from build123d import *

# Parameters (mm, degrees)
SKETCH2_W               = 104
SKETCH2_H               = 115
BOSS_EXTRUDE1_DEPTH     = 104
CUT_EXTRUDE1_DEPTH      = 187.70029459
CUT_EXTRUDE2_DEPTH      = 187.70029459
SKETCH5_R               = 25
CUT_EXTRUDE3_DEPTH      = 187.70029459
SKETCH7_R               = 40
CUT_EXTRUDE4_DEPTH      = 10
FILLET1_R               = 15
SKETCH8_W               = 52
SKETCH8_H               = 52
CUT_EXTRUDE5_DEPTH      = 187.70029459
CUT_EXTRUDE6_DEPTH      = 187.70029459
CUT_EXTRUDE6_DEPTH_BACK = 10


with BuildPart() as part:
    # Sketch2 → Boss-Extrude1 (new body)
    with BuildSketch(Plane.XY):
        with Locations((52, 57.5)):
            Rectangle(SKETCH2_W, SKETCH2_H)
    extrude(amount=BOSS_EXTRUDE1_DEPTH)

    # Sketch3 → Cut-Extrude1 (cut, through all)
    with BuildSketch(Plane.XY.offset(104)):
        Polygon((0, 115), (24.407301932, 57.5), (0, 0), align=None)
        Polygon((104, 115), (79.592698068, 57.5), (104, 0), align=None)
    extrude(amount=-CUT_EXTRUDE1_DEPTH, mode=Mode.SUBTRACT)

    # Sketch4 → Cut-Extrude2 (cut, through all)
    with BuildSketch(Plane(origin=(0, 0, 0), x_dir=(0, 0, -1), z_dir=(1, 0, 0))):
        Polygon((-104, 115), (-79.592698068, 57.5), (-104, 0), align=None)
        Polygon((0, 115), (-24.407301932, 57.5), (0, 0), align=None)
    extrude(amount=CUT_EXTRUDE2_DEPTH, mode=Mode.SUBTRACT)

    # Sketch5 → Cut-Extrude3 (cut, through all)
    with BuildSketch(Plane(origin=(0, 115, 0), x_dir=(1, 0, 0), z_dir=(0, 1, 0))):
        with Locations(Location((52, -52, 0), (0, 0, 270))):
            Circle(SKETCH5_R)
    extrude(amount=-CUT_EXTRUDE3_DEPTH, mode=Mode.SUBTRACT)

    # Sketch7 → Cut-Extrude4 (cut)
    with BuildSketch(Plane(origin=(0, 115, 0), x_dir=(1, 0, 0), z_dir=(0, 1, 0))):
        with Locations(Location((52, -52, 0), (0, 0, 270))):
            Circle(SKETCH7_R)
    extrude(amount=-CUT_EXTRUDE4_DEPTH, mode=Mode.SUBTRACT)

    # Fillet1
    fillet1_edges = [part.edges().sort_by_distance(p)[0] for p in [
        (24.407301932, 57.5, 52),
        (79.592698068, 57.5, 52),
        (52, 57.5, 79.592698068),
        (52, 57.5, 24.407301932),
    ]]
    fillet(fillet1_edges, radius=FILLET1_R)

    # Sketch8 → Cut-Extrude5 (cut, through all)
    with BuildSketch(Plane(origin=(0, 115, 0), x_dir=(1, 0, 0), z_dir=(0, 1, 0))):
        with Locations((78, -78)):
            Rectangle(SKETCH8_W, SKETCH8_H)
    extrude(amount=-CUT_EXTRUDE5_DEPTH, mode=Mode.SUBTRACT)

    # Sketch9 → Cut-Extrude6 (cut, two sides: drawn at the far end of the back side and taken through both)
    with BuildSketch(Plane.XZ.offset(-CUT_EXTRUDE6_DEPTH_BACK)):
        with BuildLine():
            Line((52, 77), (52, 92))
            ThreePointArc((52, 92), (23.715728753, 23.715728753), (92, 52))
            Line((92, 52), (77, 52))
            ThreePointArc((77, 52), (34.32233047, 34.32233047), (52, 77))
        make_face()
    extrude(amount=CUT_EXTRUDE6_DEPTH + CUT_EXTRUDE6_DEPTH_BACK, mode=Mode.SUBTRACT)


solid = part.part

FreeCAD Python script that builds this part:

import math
import FreeCAD as App
import Part
import Sketcher
from FreeCAD import Vector
Q = App.Units.Quantity


def edges_at(feature, points):
    """Names of the edges that pass closest to the given points."""
    edges = feature.Shape.Edges
    near = lambda p: min(range(len(edges)), key=lambda i: edges[i].distToShape(Part.Vertex(*p))[0])
    return sorted({f"Edge{near(p) + 1}" for p in points})

doc = App.newDocument("Part")
body = doc.addObject("PartDesign::Body", "Body")

# Sketch on XY plane
sketch1 = body.newObject("Sketcher::SketchObject", "Sketch")
sketch1.AttachmentSupport = (doc.getObject("XY_Plane"), [""])
sketch1.MapMode = "FlatFace"
sketch1.addGeometry([
    Part.LineSegment(Vector(0, 115, 0), Vector(0, 0, 0)),
    Part.LineSegment(Vector(0, 0, 0), Vector(104, 0, 0)),
    Part.LineSegment(Vector(104, 0, 0), Vector(104, 115, 0)),
    Part.LineSegment(Vector(104, 115, 0), Vector(0, 115, 0)),
], False)
sketch1.addConstraint([
    Sketcher.Constraint("Coincident", 0, 2, 1, 1),
    Sketcher.Constraint("Coincident", 1, 2, 2, 1),
    Sketcher.Constraint("Coincident", 2, 2, 3, 1),
    Sketcher.Constraint("Coincident", 3, 2, 0, 1),
    Sketcher.Constraint("Vertical", 0),
    Sketcher.Constraint("Horizontal", 1),
    Sketcher.Constraint("Vertical", 2),
    Sketcher.Constraint("Horizontal", 3),
    Sketcher.Constraint("Coincident", 0, 2, -1, 1),
    Sketcher.Constraint("DistanceX", 1, 1, 1, 2, Q("104 mm")),
    Sketcher.Constraint("DistanceY", 0, 2, 0, 1, Q("115 mm")),
])
pad1 = body.newObject("PartDesign::Pad", "Pad")
pad1.Profile = sketch1
pad1.Length = 104

# Sketch on XY plane
sketch2 = body.newObject("Sketcher::SketchObject", "Sketch001")
sketch2.AttachmentSupport = (doc.getObject("XY_Plane"), [""])
sketch2.MapMode = "FlatFace"
sketch2.AttachmentOffset = App.Placement(Vector(0, 0, 104), App.Rotation())
sketch2.addGeometry([
    Part.LineSegment(Vector(24, 58, 0), Vector(0, 115, 0)),  # 0
    Part.LineSegment(Vector(0, 115, 0), Vector(0, 0, 0)),  # 1
    Part.LineSegment(Vector(0, 0, 0), Vector(24, 58, 0)),  # 2
    Part.LineSegment(Vector(104, 115, 0), Vector(80, 58, 0)),  # 3
    Part.LineSegment(Vector(80, 58, 0), Vector(104, 0, 0)),  # 4
    Part.LineSegment(Vector(104, 0, 0), Vector(104, 115, 0)),  # 5
], False)
sketch2.addConstraint([
    Sketcher.Constraint("Coincident", 0, 2, 1, 1),
    Sketcher.Constraint("Coincident", 1, 2, 2, 1),
    Sketcher.Constraint("Coincident", 2, 2, 0, 1),
    Sketcher.Constraint("Coincident", 3, 2, 4, 1),
    Sketcher.Constraint("Coincident", 4, 2, 5, 1),
    Sketcher.Constraint("Coincident", 5, 2, 3, 1),
    Sketcher.Constraint("Vertical", 1),
    Sketcher.Constraint("Vertical", 5),
    Sketcher.Constraint("Coincident", 1, 2, -1, 1),
    Sketcher.Constraint("PointOnObject", 4, 2, -1),
    Sketcher.Constraint("Parallel", 2, 3),
    Sketcher.Constraint("Parallel", 0, 4),
    Sketcher.Constraint("Horizontal", 2, 2, 3, 2),
    Sketcher.Constraint("Horizontal", 0, 2, 5, 2),
    Sketcher.Constraint("DistanceY", 1, 2, 1, 1, Q("115 mm")),
    Sketcher.Constraint("Angle", 0, Q("113 deg")),
    Sketcher.Constraint("DistanceX", -1, 1, 4, 2, Q("104 mm")),
])
pocket1 = body.newObject("PartDesign::Pocket", "Pocket")
pocket1.Profile = sketch2
pocket1.Type = "ThroughAll"

# Sketch on YZ plane
sketch3 = body.newObject("Sketcher::SketchObject", "Sketch002")
sketch3.AttachmentSupport = (doc.getObject("YZ_Plane"), [""])
sketch3.MapMode = "FlatFace"
sketch3.addGeometry([
    Part.LineSegment(Vector(58, 80, 0), Vector(115, 104, 0)),  # 0
    Part.LineSegment(Vector(115, 104, 0), Vector(0, 104, 0)),  # 1
    Part.LineSegment(Vector(0, 104, 0), Vector(58, 80, 0)),  # 2
    Part.LineSegment(Vector(115, 0, 0), Vector(58, 24, 0)),  # 3
    Part.LineSegment(Vector(58, 24, 0), Vector(0, 0, 0)),  # 4
    Part.LineSegment(Vector(0, 0, 0), Vector(115, 0, 0)),  # 5
], False)
sketch3.addConstraint([
    Sketcher.Constraint("Coincident", 0, 2, 1, 1),
    Sketcher.Constraint("Coincident", 1, 2, 2, 1),
    Sketcher.Constraint("Coincident", 2, 2, 0, 1),
    Sketcher.Constraint("Coincident", 3, 2, 4, 1),
    Sketcher.Constraint("Coincident", 4, 2, 5, 1),
    Sketcher.Constraint("Coincident", 5, 2, 3, 1),
    Sketcher.Constraint("Horizontal", 1),
    Sketcher.Constraint("Horizontal", 5),
    Sketcher.Constraint("Coincident", 4, 2, -1, 1),
    Sketcher.Constraint("PointOnObject", 1, 2, -2),
    Sketcher.Constraint("Parallel", 2, 3),
    Sketcher.Constraint("Parallel", 0, 4),
    Sketcher.Constraint("Vertical", 2, 2, 3, 2),
    Sketcher.Constraint("Vertical", 0, 2, 5, 2),
    Sketcher.Constraint("DistanceX", 1, 2, 1, 1, Q("115 mm")),
    Sketcher.Constraint("Angle", 0, Q("23 deg")),
    Sketcher.Constraint("DistanceY", -1, 1, 0, 2, Q("104 mm")),
])
pocket2 = body.newObject("PartDesign::Pocket", "Pocket001")
pocket2.Profile = sketch3
pocket2.Type = "ThroughAll"
pocket2.Reversed = True

# Sketch on XZ plane
sketch4 = body.newObject("Sketcher::SketchObject", "Sketch003")
sketch4.AttachmentSupport = (doc.getObject("XZ_Plane"), [""])
sketch4.MapMode = "FlatFace"
sketch4.AttachmentOffset = App.Placement(Vector(0, 0, -115), App.Rotation())
sketch4.addGeometry(Part.Circle(Vector(52, 52, 0), Vector(0, 0, 1), 25), False)
sketch4.addConstraint([
    Sketcher.Constraint("Diameter", 0, Q("50 mm")),
    Sketcher.Constraint("DistanceX", -1, 1, 0, 3, Q("52 mm")),
    Sketcher.Constraint("DistanceY", -1, 1, 0, 3, Q("52 mm")),
])
pocket3 = body.newObject("PartDesign::Pocket", "Pocket002")
pocket3.Profile = sketch4
pocket3.Type = "ThroughAll"
pocket3.Reversed = True

# Sketch on XZ plane
sketch5 = body.newObject("Sketcher::SketchObject", "Sketch004")
sketch5.AttachmentSupport = (doc.getObject("XZ_Plane"), [""])
sketch5.MapMode = "FlatFace"
sketch5.AttachmentOffset = App.Placement(Vector(0, 0, -115), App.Rotation())
sketch5.addGeometry(Part.Circle(Vector(52, 52, 0), Vector(0, 0, 1), 40), False)
sketch5.addConstraint([
    Sketcher.Constraint("Diameter", 0, Q("80 mm")),
    Sketcher.Constraint("DistanceX", -1, 1, 0, 3, Q("52 mm")),
    Sketcher.Constraint("DistanceY", -1, 1, 0, 3, Q("52 mm")),
])
pocket4 = body.newObject("PartDesign::Pocket", "Pocket003")
pocket4.Profile = sketch5
pocket4.Length = 10
pocket4.Reversed = True
doc.recompute()

fillet = body.newObject("PartDesign::Fillet", "Fillet")
fillet.Base = (pocket4, edges_at(pocket4, [
    (24.407, 57.5, 52),
    (79.593, 57.5, 52),
    (52, 57.5, 79.593),
    (52, 57.5, 24.407),
]))
fillet.Radius = 15

# Sketch on XZ plane
sketch6 = body.newObject("Sketcher::SketchObject", "Sketch005")
sketch6.AttachmentSupport = (doc.getObject("XZ_Plane"), [""])
sketch6.MapMode = "FlatFace"
sketch6.AttachmentOffset = App.Placement(Vector(0, 0, -115), App.Rotation())
sketch6.addGeometry([
    Part.LineSegment(Vector(52, 52, 0), Vector(52, 104, 0)),
    Part.LineSegment(Vector(52, 104, 0), Vector(104, 104, 0)),
    Part.LineSegment(Vector(104, 104, 0), Vector(104, 52, 0)),
    Part.LineSegment(Vector(104, 52, 0), Vector(52, 52, 0)),
], False)
sketch6.addConstraint([
    Sketcher.Constraint("Coincident", 0, 2, 1, 1),
    Sketcher.Constraint("Coincident", 1, 2, 2, 1),
    Sketcher.Constraint("Coincident", 2, 2, 3, 1),
    Sketcher.Constraint("Coincident", 3, 2, 0, 1),
    Sketcher.Constraint("Vertical", 0),
    Sketcher.Constraint("Horizontal", 1),
    Sketcher.Constraint("Vertical", 2),
    Sketcher.Constraint("Horizontal", 3),
    Sketcher.Constraint("Equal", 3, 0),
    Sketcher.Constraint("DistanceX", 1, 1, 1, 2, Q("52 mm")),
    Sketcher.Constraint("DistanceX", -1, 1, 0, 2, Q("52 mm")),
    Sketcher.Constraint("DistanceY", -1, 1, 0, 2, Q("104 mm")),
])
pocket5 = body.newObject("PartDesign::Pocket", "Pocket004")
pocket5.Profile = sketch6
pocket5.Type = "ThroughAll"
pocket5.Reversed = True

# Sketch on XZ plane
sketch7 = body.newObject("Sketcher::SketchObject", "Sketch006")
sketch7.AttachmentSupport = (doc.getObject("XZ_Plane"), [""])
sketch7.MapMode = "FlatFace"
sketch7.addGeometry([
    Part.LineSegment(Vector(52, 77, 0), Vector(52, 92, 0)),
    Part.ArcOfCircle(Part.Circle(Vector(52, 52, 0), Vector(0, 0, 1), 40), math.radians(90), math.radians(360)),
    Part.LineSegment(Vector(92, 52, 0), Vector(77, 52, 0)),
    Part.ArcOfCircle(Part.Circle(Vector(52, 52, 0), Vector(0, 0, 1), 25), math.radians(90), math.radians(360)),
], False)
sketch7.addConstraint([
    Sketcher.Constraint("Coincident", 0, 2, 1, 1),
    Sketcher.Constraint("Coincident", 1, 2, 2, 1),
    Sketcher.Constraint("Coincident", 2, 2, 3, 2),
    Sketcher.Constraint("Coincident", 3, 1, 0, 1),
    Sketcher.Constraint("Vertical", 0),
    Sketcher.Constraint("Horizontal", 2),
    Sketcher.Constraint("Coincident", 3, 3, 1, 3),
    Sketcher.Constraint("Horizontal", 3, 3, 1, 2),
    Sketcher.Constraint("Vertical", 3, 3, 0, 2),
    Sketcher.Constraint("Radius", 1, Q("40 mm")),
    Sketcher.Constraint("Radius", 3, Q("25 mm")),
    Sketcher.Constraint("DistanceX", -1, 1, 1, 3, Q("52 mm")),
    Sketcher.Constraint("DistanceY", -1, 1, 1, 3, Q("52 mm")),
])
pocket6 = body.newObject("PartDesign::Pocket", "Pocket005")
pocket6.Profile = sketch7
pocket6.Type = "TwoLengths"
pocket6.Length = 187.700295
pocket6.Length2 = 10
pocket6.Reversed = True

doc.recompute()
